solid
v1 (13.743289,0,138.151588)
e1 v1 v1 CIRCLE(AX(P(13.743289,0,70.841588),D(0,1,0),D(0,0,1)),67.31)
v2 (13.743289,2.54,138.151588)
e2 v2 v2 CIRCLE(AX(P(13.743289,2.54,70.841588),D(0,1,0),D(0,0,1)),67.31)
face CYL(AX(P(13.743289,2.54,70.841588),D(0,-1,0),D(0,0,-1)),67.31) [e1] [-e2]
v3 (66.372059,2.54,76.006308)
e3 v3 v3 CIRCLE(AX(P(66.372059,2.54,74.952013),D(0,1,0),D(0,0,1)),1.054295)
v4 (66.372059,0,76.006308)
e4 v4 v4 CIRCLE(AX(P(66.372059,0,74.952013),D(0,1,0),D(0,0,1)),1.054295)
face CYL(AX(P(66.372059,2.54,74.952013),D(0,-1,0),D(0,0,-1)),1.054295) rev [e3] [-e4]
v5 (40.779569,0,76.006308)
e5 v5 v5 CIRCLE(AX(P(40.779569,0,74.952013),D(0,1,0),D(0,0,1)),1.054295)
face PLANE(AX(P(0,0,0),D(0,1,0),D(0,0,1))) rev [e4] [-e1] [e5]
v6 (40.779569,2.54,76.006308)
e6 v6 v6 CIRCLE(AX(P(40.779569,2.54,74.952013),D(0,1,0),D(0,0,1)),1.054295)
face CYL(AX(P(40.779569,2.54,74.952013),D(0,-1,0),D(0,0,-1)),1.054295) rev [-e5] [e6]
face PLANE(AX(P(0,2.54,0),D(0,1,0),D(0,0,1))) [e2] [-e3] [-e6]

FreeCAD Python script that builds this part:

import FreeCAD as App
import Part
import Sketcher

V = App.Vector
Q = App.Units.Quantity

doc = App.newDocument("Part")
body = doc.addObject("PartDesign::Body", "Body")

sketch1 = doc.addObject("Sketcher::SketchObject", "Sketch")
body.addObject(sketch1)
sketch1.AttachmentSupport = (doc.XZ_Plane, [""])
sketch1.MapMode = "FlatFace"
sketch1.addGeometry([
    Part.Circle(V(13.7, 70.8, 0), V(0, 0, 1), 67.3),
    Part.Circle(V(40.8, 75, 0), V(0, 0, 1), 1.1),
    Part.Circle(V(66.4, 75, 0), V(0, 0, 1), 1.1),
], False)
sketch1.addConstraint([
    Sketcher.Constraint("Equal", 1, 2),
    Sketcher.Constraint("Horizontal", 1, 3, 2, 3),
    Sketcher.Constraint("Diameter", 0, Q("5.3 in")),
    Sketcher.Constraint("Diameter", 1, 2.10859),
    Sketcher.Constraint("DistanceX", -1, 1, 0, 3, 13.743289),
    Sketcher.Constraint("DistanceX", -1, 1, 1, 3, 40.779569),
    Sketcher.Constraint("DistanceX", -1, 1, 2, 3, 66.372059),
    Sketcher.Constraint("DistanceY", -1, 1, 0, 3, 70.841588),
    Sketcher.Constraint("DistanceY", -1, 1, 1, 3, 74.952013),
])
pad1 = doc.addObject("PartDesign::Pad", "Pad")
body.addObject(pad1)
pad1.Profile = sketch1
pad1.Length = Q("0.1 in")
pad1.Reversed = True

doc.recompute()
